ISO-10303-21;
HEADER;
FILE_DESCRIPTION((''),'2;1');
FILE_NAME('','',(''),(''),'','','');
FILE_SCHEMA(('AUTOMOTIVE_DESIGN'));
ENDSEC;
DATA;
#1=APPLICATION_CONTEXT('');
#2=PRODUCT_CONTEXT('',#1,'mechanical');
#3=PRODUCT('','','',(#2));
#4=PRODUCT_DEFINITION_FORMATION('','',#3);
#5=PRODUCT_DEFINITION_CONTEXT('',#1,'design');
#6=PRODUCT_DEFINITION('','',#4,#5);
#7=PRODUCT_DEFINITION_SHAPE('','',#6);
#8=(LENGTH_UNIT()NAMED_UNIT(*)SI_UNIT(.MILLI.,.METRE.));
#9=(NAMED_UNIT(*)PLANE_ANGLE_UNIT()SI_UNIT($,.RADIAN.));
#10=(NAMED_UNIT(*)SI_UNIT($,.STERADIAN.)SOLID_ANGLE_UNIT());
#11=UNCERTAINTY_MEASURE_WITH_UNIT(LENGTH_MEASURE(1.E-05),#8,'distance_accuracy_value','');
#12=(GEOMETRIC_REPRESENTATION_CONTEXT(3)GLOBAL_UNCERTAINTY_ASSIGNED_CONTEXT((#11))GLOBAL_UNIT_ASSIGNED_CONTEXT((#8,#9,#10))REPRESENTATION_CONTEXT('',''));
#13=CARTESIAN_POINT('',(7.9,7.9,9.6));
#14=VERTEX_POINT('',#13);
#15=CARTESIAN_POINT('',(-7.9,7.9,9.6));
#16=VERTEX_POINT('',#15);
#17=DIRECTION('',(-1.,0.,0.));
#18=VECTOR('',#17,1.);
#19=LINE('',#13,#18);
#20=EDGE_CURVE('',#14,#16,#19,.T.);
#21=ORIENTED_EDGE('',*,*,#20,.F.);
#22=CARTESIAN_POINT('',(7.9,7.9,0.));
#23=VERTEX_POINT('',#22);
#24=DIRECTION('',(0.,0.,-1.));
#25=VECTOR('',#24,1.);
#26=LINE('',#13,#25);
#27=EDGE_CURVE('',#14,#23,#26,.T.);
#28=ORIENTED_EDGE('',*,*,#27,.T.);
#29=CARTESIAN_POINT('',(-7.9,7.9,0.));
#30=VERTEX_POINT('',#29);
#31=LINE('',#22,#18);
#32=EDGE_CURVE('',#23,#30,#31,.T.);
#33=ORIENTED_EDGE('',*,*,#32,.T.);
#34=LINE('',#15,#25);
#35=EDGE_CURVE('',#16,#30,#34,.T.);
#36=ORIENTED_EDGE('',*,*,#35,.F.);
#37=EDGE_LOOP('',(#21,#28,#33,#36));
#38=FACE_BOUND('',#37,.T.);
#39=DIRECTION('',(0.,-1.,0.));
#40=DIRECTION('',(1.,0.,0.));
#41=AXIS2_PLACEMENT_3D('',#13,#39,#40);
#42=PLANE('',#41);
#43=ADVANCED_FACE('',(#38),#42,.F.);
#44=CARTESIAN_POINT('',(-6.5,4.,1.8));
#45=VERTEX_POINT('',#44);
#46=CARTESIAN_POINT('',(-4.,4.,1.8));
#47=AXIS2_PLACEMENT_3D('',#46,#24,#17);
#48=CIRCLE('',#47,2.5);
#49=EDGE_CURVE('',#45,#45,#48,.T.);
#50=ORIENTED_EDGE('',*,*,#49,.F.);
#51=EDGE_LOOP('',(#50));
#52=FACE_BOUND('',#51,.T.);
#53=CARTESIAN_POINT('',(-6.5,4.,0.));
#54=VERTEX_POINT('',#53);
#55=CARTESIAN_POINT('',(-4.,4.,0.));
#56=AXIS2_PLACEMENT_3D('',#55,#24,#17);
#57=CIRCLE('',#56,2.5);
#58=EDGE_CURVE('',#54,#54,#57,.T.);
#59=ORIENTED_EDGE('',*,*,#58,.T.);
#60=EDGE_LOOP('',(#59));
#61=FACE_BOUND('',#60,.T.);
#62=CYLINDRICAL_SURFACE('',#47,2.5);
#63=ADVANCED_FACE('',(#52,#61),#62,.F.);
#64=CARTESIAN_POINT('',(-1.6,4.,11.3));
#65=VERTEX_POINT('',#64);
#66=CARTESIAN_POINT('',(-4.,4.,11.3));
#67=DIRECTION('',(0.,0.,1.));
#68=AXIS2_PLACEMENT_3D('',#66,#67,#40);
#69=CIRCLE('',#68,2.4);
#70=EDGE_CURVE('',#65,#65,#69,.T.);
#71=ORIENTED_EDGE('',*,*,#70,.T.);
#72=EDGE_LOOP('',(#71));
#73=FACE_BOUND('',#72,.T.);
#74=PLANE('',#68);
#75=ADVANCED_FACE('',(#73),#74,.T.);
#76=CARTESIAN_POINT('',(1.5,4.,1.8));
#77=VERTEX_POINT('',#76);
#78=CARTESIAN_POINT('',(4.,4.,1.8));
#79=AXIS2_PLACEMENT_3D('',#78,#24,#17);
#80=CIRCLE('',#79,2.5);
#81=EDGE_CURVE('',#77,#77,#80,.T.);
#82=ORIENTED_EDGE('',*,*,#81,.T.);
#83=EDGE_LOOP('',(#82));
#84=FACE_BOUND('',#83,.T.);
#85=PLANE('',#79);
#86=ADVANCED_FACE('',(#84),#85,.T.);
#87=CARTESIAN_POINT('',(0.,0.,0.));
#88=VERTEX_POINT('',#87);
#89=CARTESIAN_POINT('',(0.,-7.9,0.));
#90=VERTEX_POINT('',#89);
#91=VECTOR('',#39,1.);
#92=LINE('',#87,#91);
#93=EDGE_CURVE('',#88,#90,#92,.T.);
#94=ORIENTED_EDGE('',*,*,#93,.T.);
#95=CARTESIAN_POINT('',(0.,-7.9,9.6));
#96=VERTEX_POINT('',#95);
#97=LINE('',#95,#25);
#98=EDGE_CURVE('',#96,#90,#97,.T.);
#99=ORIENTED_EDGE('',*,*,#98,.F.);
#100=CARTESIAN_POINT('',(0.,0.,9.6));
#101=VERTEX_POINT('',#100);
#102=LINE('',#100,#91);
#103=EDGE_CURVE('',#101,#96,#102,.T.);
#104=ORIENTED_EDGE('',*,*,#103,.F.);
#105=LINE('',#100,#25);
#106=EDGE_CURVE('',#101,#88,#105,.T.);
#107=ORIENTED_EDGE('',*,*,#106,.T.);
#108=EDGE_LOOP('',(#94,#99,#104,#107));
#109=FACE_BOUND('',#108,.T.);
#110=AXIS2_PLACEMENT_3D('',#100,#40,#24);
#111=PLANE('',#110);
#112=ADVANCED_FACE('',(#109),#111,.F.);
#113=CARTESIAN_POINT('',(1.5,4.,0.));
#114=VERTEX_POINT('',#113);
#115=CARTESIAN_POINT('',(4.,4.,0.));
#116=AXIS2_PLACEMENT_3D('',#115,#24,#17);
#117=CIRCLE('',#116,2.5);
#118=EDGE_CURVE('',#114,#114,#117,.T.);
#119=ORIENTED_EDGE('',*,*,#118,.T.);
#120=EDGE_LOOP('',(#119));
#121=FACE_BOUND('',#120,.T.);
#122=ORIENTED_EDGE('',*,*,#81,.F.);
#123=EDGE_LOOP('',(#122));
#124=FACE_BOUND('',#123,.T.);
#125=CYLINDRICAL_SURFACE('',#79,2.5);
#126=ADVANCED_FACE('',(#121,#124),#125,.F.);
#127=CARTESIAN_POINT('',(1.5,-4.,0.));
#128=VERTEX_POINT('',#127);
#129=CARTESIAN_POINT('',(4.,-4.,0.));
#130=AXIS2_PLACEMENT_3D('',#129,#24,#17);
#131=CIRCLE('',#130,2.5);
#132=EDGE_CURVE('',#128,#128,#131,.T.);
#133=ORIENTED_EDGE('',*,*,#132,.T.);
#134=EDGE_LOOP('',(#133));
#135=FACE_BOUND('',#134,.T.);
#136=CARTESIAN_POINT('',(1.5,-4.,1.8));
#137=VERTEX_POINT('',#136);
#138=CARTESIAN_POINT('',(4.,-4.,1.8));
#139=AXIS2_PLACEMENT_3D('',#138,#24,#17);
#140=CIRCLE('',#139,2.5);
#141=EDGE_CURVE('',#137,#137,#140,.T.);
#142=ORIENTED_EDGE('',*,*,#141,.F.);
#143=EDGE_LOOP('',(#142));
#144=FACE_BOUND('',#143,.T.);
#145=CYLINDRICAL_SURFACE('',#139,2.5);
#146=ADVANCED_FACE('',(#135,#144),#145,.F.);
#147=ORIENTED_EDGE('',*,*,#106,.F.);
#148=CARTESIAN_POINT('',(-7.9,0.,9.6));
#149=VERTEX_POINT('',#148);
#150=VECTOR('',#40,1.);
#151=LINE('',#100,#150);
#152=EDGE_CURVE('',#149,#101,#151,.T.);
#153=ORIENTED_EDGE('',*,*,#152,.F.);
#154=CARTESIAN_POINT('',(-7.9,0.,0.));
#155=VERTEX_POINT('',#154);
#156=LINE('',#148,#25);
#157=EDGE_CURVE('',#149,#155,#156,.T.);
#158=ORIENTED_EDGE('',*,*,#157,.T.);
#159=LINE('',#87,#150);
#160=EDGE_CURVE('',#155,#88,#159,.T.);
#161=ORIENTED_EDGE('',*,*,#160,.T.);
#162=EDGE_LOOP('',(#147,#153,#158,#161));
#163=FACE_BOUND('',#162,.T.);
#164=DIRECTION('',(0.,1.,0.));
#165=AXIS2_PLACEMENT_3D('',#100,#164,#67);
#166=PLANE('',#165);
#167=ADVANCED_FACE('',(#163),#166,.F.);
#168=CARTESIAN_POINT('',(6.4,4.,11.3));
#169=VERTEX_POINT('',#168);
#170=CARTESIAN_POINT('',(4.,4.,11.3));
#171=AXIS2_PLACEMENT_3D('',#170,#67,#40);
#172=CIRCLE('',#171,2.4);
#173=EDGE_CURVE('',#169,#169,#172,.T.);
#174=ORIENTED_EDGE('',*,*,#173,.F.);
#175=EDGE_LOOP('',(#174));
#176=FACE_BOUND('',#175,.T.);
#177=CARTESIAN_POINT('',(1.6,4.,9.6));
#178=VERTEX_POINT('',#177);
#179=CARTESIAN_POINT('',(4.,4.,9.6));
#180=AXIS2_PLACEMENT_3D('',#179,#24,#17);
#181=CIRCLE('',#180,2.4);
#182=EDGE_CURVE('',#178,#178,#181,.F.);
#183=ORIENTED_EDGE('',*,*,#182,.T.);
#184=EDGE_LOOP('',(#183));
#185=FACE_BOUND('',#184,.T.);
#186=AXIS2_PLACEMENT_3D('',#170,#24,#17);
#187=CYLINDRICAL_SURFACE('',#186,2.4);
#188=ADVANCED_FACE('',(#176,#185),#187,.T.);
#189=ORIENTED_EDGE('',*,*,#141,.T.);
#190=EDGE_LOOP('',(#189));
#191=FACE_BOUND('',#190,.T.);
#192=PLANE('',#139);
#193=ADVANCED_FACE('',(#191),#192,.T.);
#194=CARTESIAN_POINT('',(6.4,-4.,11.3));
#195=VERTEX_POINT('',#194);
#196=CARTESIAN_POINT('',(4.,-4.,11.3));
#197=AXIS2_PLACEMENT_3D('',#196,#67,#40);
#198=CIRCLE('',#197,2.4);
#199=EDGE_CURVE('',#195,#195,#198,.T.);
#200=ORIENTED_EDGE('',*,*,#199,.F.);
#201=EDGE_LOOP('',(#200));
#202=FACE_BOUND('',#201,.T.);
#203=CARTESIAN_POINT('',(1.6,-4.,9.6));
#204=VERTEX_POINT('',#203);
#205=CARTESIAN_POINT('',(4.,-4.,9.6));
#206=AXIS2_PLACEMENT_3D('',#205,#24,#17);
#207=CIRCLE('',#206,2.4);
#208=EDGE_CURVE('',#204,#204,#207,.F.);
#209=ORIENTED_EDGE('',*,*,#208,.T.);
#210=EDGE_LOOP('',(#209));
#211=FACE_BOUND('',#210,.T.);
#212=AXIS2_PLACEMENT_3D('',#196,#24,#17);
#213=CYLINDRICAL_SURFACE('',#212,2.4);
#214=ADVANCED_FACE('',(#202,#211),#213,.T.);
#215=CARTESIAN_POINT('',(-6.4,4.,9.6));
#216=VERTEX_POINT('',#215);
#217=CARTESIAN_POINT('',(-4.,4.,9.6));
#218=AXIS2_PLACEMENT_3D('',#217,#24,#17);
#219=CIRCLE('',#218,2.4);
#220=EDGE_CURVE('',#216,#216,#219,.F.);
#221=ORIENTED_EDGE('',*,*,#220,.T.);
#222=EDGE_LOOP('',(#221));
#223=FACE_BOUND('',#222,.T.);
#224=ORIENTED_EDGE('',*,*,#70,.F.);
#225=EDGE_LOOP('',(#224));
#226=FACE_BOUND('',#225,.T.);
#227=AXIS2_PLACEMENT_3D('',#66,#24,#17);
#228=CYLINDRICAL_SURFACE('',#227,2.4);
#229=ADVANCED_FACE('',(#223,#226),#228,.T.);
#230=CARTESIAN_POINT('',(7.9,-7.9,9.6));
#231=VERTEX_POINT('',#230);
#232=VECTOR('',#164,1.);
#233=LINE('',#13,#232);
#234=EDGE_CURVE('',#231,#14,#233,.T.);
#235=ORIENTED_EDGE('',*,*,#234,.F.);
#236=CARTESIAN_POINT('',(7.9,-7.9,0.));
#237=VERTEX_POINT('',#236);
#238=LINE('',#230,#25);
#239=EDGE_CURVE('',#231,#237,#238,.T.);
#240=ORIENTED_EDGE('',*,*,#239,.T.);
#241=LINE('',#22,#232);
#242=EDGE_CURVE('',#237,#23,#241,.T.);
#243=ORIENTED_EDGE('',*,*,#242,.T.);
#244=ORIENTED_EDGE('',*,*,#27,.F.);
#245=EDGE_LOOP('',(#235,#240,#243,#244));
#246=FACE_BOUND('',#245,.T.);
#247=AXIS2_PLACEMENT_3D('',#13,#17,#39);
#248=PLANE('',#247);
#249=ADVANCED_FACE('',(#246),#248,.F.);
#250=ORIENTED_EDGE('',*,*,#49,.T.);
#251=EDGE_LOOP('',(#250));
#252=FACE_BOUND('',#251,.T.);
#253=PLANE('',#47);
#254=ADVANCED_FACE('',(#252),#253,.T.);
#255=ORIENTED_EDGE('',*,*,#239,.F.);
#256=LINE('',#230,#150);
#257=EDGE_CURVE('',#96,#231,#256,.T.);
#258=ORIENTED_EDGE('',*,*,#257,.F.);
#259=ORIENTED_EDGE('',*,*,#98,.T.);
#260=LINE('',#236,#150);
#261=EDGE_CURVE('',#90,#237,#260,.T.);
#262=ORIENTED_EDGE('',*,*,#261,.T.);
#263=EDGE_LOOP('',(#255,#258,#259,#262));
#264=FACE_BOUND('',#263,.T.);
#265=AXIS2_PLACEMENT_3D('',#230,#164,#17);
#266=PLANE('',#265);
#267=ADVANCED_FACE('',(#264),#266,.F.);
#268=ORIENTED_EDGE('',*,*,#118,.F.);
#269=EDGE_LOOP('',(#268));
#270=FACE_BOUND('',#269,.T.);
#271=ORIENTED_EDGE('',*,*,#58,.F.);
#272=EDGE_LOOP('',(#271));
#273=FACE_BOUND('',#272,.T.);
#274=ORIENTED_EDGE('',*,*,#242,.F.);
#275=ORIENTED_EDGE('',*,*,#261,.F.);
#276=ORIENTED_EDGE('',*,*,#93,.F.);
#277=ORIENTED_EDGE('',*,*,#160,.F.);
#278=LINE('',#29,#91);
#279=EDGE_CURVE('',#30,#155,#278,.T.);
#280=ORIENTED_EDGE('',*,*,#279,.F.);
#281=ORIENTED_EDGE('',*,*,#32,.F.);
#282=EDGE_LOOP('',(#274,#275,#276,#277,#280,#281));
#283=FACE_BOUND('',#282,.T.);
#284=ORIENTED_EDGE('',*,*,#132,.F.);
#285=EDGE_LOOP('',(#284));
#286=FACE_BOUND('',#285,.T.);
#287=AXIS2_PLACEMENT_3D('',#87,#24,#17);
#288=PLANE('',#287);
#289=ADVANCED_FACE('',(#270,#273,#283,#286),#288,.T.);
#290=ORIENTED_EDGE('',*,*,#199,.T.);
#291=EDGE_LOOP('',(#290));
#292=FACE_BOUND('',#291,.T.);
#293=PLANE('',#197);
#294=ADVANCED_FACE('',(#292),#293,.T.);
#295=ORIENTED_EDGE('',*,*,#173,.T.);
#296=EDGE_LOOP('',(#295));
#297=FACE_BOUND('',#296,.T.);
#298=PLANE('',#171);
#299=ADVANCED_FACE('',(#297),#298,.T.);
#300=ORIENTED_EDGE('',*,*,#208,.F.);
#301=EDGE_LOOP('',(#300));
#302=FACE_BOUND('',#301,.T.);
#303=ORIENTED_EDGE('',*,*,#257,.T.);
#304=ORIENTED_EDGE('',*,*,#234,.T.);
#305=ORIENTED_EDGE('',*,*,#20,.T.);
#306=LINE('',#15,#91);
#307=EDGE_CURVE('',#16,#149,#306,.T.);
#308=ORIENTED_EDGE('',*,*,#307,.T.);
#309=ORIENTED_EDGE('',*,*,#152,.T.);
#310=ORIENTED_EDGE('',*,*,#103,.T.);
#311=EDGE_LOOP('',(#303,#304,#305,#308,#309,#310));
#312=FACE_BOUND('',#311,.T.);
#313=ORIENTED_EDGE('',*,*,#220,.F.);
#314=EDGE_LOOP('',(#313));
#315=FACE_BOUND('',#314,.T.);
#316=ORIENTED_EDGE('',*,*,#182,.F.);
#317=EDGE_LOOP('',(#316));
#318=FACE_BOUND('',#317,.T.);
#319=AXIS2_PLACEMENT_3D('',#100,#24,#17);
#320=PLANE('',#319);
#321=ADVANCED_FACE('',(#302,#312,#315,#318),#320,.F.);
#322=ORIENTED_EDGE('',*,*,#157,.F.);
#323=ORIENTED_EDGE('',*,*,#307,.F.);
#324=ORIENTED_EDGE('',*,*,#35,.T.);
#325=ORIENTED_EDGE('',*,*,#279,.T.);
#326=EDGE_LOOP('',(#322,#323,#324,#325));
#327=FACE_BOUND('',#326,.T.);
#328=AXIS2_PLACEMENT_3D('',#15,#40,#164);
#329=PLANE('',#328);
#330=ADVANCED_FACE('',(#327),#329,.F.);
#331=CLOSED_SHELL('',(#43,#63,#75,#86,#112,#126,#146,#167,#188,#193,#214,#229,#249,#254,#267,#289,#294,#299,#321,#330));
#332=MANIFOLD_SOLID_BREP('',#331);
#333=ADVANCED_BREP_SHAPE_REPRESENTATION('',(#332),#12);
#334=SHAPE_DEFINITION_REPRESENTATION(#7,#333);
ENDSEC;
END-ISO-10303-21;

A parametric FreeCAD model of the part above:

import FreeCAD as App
import Part
import Sketcher

V = App.Vector
Q = App.Units.Quantity

doc = App.newDocument("Part")
body = doc.addObject("PartDesign::Body", "Body")

sketch1 = body.newObject("Sketcher::SketchObject", "Sketch")
sketch1.AttachmentSupport = (doc.getObject("XY_Plane"), [""])
sketch1.MapMode = "FlatFace"
sketch1.addGeometry([
    Part.LineSegment(V(8, 8, 0), V(-8, 8, 0)),
    Part.LineSegment(V(-8, 8, 0), V(-8, 0, 0)),
    Part.LineSegment(V(-8, 0, 0), V(0, 0, 0)),
    Part.LineSegment(V(0, 0, 0), V(0, -8, 0)),
    Part.LineSegment(V(0, -8, 0), V(8, -8, 0)),
    Part.LineSegment(V(8, -8, 0), V(8, 8, 0)),
], False)
sketch1.addConstraint([
    Sketcher.Constraint("Coincident", 0, 2, 1, 1),
    Sketcher.Constraint("Coincident", 1, 2, 2, 1),
    Sketcher.Constraint("Coincident", 2, 2, 3, 1),
    Sketcher.Constraint("Coincident", 3, 2, 4, 1),
    Sketcher.Constraint("Coincident", 4, 2, 5, 1),
    Sketcher.Constraint("Coincident", 5, 2, 0, 1),
    Sketcher.Constraint("Horizontal", 0),
    Sketcher.Constraint("Vertical", 1),
    Sketcher.Constraint("Horizontal", 2),
    Sketcher.Constraint("Vertical", 3),
    Sketcher.Constraint("Horizontal", 4),
    Sketcher.Constraint("Vertical", 5),
    Sketcher.Constraint("Coincident", 2, 2, -1, 1),
    Sketcher.Constraint("Symmetric", 0, 2, 4, 2, -1, 1),
    Sketcher.Constraint("Equal", 4, 1),
    Sketcher.Constraint("DistanceX", 0, 2, 0, 1, Q("15.8 mm")),
])
pad1 = body.newObject("PartDesign::Pad", "Pad")
pad1.Profile = sketch1
pad1.Length = 9.6

sketch2 = body.newObject("Sketcher::SketchObject", "Sketch001")
sketch2.AttachmentSupport = (doc.getObject("XY_Plane"), [""])
sketch2.MapMode = "FlatFace"
sketch2.AttachmentOffset = App.Placement(V(0, 0, 9.6), App.Rotation())
sketch2.addGeometry([
    Part.Circle(V(-4, 4, 0), V(0, 0, 1), 2.4),
    Part.Circle(V(4, 4, 0), V(0, 0, 1), 2.4),
    Part.Circle(V(4, -4, 0), V(0, 0, 1), 2.4),
], False)
sketch2.addConstraint([
    Sketcher.Constraint("Equal", 0, 1),
    Sketcher.Constraint("Equal", 1, 2),
    Sketcher.Constraint("Symmetric", 0, 3, 2, 3, -1, 1),
    Sketcher.Constraint("Symmetric", 0, 3, 1, 3, -2),
    Sketcher.Constraint("Diameter", 0, Q("4.8 mm")),
    Sketcher.Constraint("DistanceX", 0, 3, -1, 1, Q("4 mm")),
    Sketcher.Constraint("DistanceY", -1, 1, 0, 3, Q("4 mm")),
])
pad2 = body.newObject("PartDesign::Pad", "Pad001")
pad2.Profile = sketch2
pad2.Length = 1.7

sketch3 = body.newObject("Sketcher::SketchObject", "Sketch002")
sketch3.AttachmentSupport = (doc.getObject("XY_Plane"), [""])
sketch3.MapMode = "FlatFace"
sketch3.addGeometry([
    Part.Circle(V(-4, 4, 0), V(0, 0, 1), 2.5),
    Part.Circle(V(4, 4, 0), V(0, 0, 1), 2.5),
    Part.Circle(V(4, -4, 0), V(0, 0, 1), 2.5),
], False)
sketch3.addConstraint([
    Sketcher.Constraint("Equal", 0, 1),
    Sketcher.Constraint("Equal", 1, 2),
    Sketcher.Constraint("Symmetric", 0, 3, 2, 3, -1, 1),
    Sketcher.Constraint("Symmetric", 0, 3, 1, 3, -2),
    Sketcher.Constraint("Diameter", 0, Q("5 mm")),
    Sketcher.Constraint("DistanceX", 0, 3, -1, 1, Q("4 mm")),
    Sketcher.Constraint("DistanceY", -1, 1, 0, 3, Q("4 mm")),
])
pocket1 = body.newObject("PartDesign::Pocket", "Pocket")
pocket1.Profile = sketch3
pocket1.Length = 1.8
pocket1.Reversed = True

doc.recompute()
